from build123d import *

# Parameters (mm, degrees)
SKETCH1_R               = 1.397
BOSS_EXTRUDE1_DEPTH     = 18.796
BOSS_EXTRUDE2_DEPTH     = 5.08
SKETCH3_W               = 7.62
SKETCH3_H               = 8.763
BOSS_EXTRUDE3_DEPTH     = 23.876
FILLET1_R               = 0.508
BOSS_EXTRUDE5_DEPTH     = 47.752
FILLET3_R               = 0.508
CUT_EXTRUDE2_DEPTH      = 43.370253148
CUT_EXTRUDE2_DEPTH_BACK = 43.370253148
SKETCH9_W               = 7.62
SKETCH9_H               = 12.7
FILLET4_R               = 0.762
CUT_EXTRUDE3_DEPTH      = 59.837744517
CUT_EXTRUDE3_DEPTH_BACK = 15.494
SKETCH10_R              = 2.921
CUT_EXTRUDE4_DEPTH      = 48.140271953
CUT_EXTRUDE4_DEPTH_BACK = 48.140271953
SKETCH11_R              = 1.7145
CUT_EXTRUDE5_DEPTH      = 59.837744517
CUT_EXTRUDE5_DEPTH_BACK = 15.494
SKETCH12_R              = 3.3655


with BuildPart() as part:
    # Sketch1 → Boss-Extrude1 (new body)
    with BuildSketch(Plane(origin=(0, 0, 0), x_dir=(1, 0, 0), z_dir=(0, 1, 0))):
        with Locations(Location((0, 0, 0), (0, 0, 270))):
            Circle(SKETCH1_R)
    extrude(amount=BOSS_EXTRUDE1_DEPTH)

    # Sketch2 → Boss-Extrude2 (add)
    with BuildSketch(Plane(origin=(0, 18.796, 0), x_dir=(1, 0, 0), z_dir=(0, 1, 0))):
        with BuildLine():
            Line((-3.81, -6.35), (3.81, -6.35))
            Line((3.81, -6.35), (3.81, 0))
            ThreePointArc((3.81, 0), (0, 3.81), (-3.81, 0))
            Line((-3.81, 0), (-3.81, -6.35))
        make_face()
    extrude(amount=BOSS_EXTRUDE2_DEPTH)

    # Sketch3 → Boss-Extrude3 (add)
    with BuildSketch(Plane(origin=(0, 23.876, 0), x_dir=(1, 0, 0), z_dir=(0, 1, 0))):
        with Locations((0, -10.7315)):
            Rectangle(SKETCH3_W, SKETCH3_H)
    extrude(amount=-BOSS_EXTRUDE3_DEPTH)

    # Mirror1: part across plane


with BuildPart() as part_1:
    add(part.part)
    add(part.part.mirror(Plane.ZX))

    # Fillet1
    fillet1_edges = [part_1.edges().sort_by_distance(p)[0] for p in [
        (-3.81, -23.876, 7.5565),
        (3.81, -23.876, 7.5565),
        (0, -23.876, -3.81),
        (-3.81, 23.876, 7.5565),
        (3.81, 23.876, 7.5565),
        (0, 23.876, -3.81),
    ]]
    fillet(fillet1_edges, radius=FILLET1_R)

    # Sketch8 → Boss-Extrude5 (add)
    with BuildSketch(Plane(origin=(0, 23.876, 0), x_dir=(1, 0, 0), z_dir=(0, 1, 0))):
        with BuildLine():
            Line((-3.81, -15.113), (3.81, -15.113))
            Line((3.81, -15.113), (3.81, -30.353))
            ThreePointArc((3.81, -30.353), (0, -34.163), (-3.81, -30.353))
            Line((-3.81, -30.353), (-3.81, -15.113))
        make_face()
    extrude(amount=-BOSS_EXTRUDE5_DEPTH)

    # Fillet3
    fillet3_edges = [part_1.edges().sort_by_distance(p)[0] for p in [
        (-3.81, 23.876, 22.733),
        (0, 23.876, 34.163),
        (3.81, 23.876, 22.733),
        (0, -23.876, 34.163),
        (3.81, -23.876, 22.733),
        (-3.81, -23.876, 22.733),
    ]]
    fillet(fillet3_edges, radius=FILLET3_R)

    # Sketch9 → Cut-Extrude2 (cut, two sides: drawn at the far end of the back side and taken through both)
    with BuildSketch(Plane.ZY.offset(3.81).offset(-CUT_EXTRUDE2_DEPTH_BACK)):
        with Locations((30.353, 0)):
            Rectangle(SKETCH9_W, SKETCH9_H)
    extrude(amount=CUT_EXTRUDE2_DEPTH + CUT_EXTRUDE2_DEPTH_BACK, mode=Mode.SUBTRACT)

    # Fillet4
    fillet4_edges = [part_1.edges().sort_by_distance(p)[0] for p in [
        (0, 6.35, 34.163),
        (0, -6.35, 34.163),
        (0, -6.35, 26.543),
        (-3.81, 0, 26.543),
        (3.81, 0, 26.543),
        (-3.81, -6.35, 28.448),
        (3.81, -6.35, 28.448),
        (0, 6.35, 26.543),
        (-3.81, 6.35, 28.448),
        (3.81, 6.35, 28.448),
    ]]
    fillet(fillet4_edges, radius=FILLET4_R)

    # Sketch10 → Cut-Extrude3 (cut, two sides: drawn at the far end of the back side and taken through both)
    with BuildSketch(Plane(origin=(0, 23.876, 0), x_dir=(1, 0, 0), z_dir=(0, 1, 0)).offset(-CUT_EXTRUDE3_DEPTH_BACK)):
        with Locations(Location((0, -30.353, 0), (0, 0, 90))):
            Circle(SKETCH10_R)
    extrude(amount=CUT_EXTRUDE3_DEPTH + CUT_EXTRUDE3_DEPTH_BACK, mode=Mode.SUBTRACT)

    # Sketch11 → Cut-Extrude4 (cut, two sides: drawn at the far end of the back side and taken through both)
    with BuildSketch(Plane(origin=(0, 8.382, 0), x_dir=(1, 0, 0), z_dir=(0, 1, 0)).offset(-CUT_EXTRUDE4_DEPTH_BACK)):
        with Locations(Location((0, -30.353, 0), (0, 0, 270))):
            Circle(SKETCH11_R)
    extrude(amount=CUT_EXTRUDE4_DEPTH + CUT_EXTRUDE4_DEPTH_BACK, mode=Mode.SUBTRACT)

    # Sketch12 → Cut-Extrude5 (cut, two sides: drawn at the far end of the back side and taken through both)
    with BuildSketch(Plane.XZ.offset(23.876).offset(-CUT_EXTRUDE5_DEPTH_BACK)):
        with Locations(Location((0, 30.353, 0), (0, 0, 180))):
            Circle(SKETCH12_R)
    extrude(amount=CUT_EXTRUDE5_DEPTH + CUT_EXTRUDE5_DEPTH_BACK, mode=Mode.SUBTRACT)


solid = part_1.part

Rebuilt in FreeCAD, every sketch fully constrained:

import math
import FreeCAD as App
import Part
import Sketcher

V = App.Vector
Q = App.Units.Quantity


def edges_at(feature, points):
    """Names of the edges that pass closest to the given points."""
    edges = feature.Shape.Edges
    near = lambda p: min(range(len(edges)), key=lambda i: edges[i].distToShape(Part.Vertex(*p))[0])
    return sorted({f"Edge{near(p) + 1}" for p in points})

doc = App.newDocument("Part")
body = doc.addObject("PartDesign::Body", "Body")

sketch1 = doc.addObject("Sketcher::SketchObject", "Sketch")
body.addObject(sketch1)
sketch1.AttachmentSupport = (doc.XZ_Plane, [""])
sketch1.MapMode = "FlatFace"
sketch1.addGeometry(Part.Circle(V(0, 0, 0), V(0, 0, 1), 1.397), False)
sketch1.addConstraint(Sketcher.Constraint("Coincident", 0, 3, -1, 1))
sketch1.addConstraint(Sketcher.Constraint("Diameter", 0, Q("0.11 in")))
pad1 = doc.addObject("PartDesign::Pad", "Pad")
body.addObject(pad1)
pad1.Profile = sketch1
pad1.Length = Q("0.74 in")
pad1.Reversed = True

sketch2 = doc.addObject("Sketcher::SketchObject", "Sketch001")
body.addObject(sketch2)
sketch2.AttachmentSupport = (doc.XZ_Plane, [""])
sketch2.MapMode = "FlatFace"
sketch2.AttachmentOffset = App.Placement(V(0, 0, -0.74 * 25.4), App.Rotation())
sketch2.addGeometry(Part.LineSegment(V(-3.81, 6.35, 0), V(3.81, 6.35, 0)), False)
sketch2.addGeometry(Part.LineSegment(V(3.81, 6.35, 0), V(3.81, 0, 0)), False)
sketch2.addGeometry(Part.ArcOfCircle(Part.Circle(V(0, 0, 0), V(0, 0, 1), 3.81), math.radians(180), math.radians(360)), False)
sketch2.addGeometry(Part.LineSegment(V(-3.81, 0, 0), V(-3.81, 6.35, 0)), False)
sketch2.addConstraint(Sketcher.Constraint("Coincident", 0, 2, 1, 1))
sketch2.addConstraint(Sketcher.Constraint("Tangent", 1, 2, 2, 2))
sketch2.addConstraint(Sketcher.Constraint("Tangent", 2, 1, 3, 1))
sketch2.addConstraint(Sketcher.Constraint("Coincident", 3, 2, 0, 1))
sketch2.addConstraint(Sketcher.Constraint("Horizontal", 0))
sketch2.addConstraint(Sketcher.Constraint("Vertical", 1))
sketch2.addConstraint(Sketcher.Constraint("Vertical", 3))
sketch2.addConstraint(Sketcher.Constraint("Coincident", 2, 3, -1, 1))
sketch2.addConstraint(Sketcher.Constraint("Radius", 2, Q("0.15 in")))
sketch2.addConstraint(Sketcher.Constraint("DistanceY", 1, 2, 1, 1, Q("0.25 in")))
pad2 = doc.addObject("PartDesign::Pad", "Pad001")
body.addObject(pad2)
pad2.Profile = sketch2
pad2.Length = Q("0.2 in")
pad2.Reversed = True

sketch3 = doc.addObject("Sketcher::SketchObject", "Sketch002")
body.addObject(sketch3)
sketch3.AttachmentSupport = (doc.XZ_Plane, [""])
sketch3.MapMode = "FlatFace"
sketch3.AttachmentOffset = App.Placement(V(0, 0, -0.94 * 25.4), App.Rotation())
sketch3.addGeometry(Part.LineSegment(V(-3.81, 6.35, 0), V(-3.81, 15.113, 0)), False)
sketch3.addGeometry(Part.LineSegment(V(-3.81, 15.113, 0), V(3.81, 15.113, 0)), False)
sketch3.addGeometry(Part.LineSegment(V(3.81, 15.113, 0), V(3.81, 6.35, 0)), False)
sketch3.addGeometry(Part.LineSegment(V(3.81, 6.35, 0), V(-3.81, 6.35, 0)), False)
sketch3.addConstraint(Sketcher.Constraint("Coincident", 0, 2, 1, 1))
sketch3.addConstraint(Sketcher.Constraint("Coincident", 1, 2, 2, 1))
sketch3.addConstraint(Sketcher.Constraint("Coincident", 2, 2, 3, 1))
sketch3.addConstraint(Sketcher.Constraint("Coincident", 3, 2, 0, 1))
sketch3.addConstraint(Sketcher.Constraint("Vertical", 0))
sketch3.addConstraint(Sketcher.Constraint("Horizontal", 1))
sketch3.addConstraint(Sketcher.Constraint("Vertical", 2))
sketch3.addConstraint(Sketcher.Constraint("Horizontal", 3))
sketch3.addConstraint(Sketcher.Constraint("DistanceX", 1, 1, 1, 2, Q("0.3 in")))
sketch3.addConstraint(Sketcher.Constraint("DistanceY", 0, 1, 0, 2, Q("0.345 in")))
sketch3.addConstraint(Sketcher.Constraint("DistanceX", 0, 2, -1, 1, Q("0.15 in")))
sketch3.addConstraint(Sketcher.Constraint("DistanceY", -1, 1, 2, 2, Q("0.25 in")))
pad3 = doc.addObject("PartDesign::Pad", "Pad002")
body.addObject(pad3)
pad3.Profile = sketch3
pad3.Length = Q("0.94 in")
body2 = doc.addObject("PartDesign::Body", "Body001")
doc.recompute()

body2.BaseFeature = body
doc.recompute()

mirroring = doc.addObject("Part::Mirroring", "Mirroring")
mirroring.Source = body
mirroring.Base = V(0, 0, 0)
mirroring.Normal = V(0, 1, 0)
body3 = doc.addObject("PartDesign::Body", "Body002")
body3.BaseFeature = mirroring
boolean = doc.addObject("PartDesign::Boolean", "Boolean")
body2.addObject(boolean)
boolean.Type = "Fuse"
boolean.addObjects([body3])
doc.recompute()

fillet = doc.addObject("PartDesign::Fillet", "Fillet")
body2.addObject(fillet)
fillet.Base = (boolean, edges_at(boolean, [
    (-3.81, -23.876, 7.556),
    (3.81, -23.876, 7.556),
    (0, -23.876, -3.81),
    (-3.81, 23.876, 7.556),
    (3.81, 23.876, 7.556),
    (0, 23.876, -3.81),
]))
fillet.Radius = Q("0.02 in")

sketch4 = doc.addObject("Sketcher::SketchObject", "Sketch003")
body2.addObject(sketch4)
sketch4.AttachmentSupport = (doc.getObject("XZ_Plane001"), [""])
sketch4.MapMode = "FlatFace"
sketch4.AttachmentOffset = App.Placement(V(0, 0, -0.94 * 25.4), App.Rotation())
sketch4.addGeometry(Part.LineSegment(V(3.81, 15.113, 0), V(-3.81, 15.113, 0)), False)
sketch4.addGeometry(Part.LineSegment(V(-3.81, 15.113, 0), V(-3.81, 30.353, 0)), False)
sketch4.addGeometry(Part.ArcOfCircle(Part.Circle(V(0, 30.353, 0), V(0, 0, 1), 3.81), math.radians(0), math.radians(180)), False)
sketch4.addGeometry(Part.LineSegment(V(3.81, 30.353, 0), V(3.81, 15.113, 0)), False)
sketch4.addConstraint(Sketcher.Constraint("Coincident", 0, 2, 1, 1))
sketch4.addConstraint(Sketcher.Constraint("Tangent", 1, 2, 2, 2))
sketch4.addConstraint(Sketcher.Constraint("Tangent", 2, 1, 3, 1))
sketch4.addConstraint(Sketcher.Constraint("Coincident", 3, 2, 0, 1))
sketch4.addConstraint(Sketcher.Constraint("Horizontal", 0))
sketch4.addConstraint(Sketcher.Constraint("Vertical", 1))
sketch4.addConstraint(Sketcher.Constraint("Vertical", 3))
sketch4.addConstraint(Sketcher.Constraint("PointOnObject", 2, 3, -2))
sketch4.addConstraint(Sketcher.Constraint("Radius", 2, Q("0.15 in")))
sketch4.addConstraint(Sketcher.Constraint("DistanceY", 1, 1, 1, 2, Q("0.6 in")))
sketch4.addConstraint(Sketcher.Constraint("DistanceY", -1, 1, 2, 3, Q("1.195 in")))
pad4 = doc.addObject("PartDesign::Pad", "Pad003")
body2.addObject(pad4)
pad4.Profile = sketch4
pad4.Length = Q("1.88 in")
doc.recompute()

fillet2 = doc.addObject("PartDesign::Fillet", "Fillet001")
body2.addObject(fillet2)
fillet2.Base = (pad4, edges_at(pad4, [
    (-3.81, 23.876, 22.733),
    (0, 23.876, 34.163),
    (3.81, 23.876, 22.733),
    (0, -23.876, 34.163),
    (3.81, -23.876, 22.733),
    (-3.81, -23.876, 22.733),
]))
fillet2.Radius = Q("0.02 in")

sketch5 = doc.addObject("Sketcher::SketchObject", "Sketch004")
body2.addObject(sketch5)
sketch5.AttachmentSupport = (doc.getObject("YZ_Plane001"), [""])
sketch5.MapMode = "FlatFace"
sketch5.AttachmentOffset = App.Placement(V(0, 0, -0.15 * 25.4), App.Rotation())
sketch5.addGeometry(Part.LineSegment(V(6.35, 26.543, 0), V(-6.35, 26.543, 0)), False)
sketch5.addGeometry(Part.LineSegment(V(-6.35, 26.543, 0), V(-6.35, 34.163, 0)), False)
sketch5.addGeometry(Part.LineSegment(V(-6.35, 34.163, 0), V(6.35, 34.163, 0)), False)
sketch5.addGeometry(Part.LineSegment(V(6.35, 34.163, 0), V(6.35, 26.543, 0)), False)
sketch5.addConstraint(Sketcher.Constraint("Coincident", 0, 2, 1, 1))
sketch5.addConstraint(Sketcher.Constraint("Coincident", 1, 2, 2, 1))
sketch5.addConstraint(Sketcher.Constraint("Coincident", 2, 2, 3, 1))
sketch5.addConstraint(Sketcher.Constraint("Coincident", 3, 2, 0, 1))
sketch5.addConstraint(Sketcher.Constraint("Horizontal", 0))
sketch5.addConstraint(Sketcher.Constraint("Vertical", 1))
sketch5.addConstraint(Sketcher.Constraint("Horizontal", 2))
sketch5.addConstraint(Sketcher.Constraint("Vertical", 3))
sketch5.addConstraint(Sketcher.Constraint("DistanceX", 0, 2, 0, 1, Q("0.5 in")))
sketch5.addConstraint(Sketcher.Constraint("DistanceY", 1, 1, 1, 2, Q("0.3 in")))
sketch5.addConstraint(Sketcher.Constraint("DistanceX", 0, 2, -1, 1, Q("0.25 in")))
sketch5.addConstraint(Sketcher.Constraint("DistanceY", -1, 1, 0, 2, Q("1.045 in")))
pocket1 = doc.addObject("PartDesign::Pocket", "Pocket")
body2.addObject(pocket1)
pocket1.Profile = sketch5
pocket1.Type = "ThroughAll"
pocket1.Midplane = True
doc.recompute()

fillet3 = doc.addObject("PartDesign::Fillet", "Fillet002")
body2.addObject(fillet3)
fillet3.Base = (pocket1, edges_at(pocket1, [
    (0, 6.35, 34.163),
    (0, -6.35, 34.163),
    (0, -6.35, 26.543),
    (-3.81, 0, 26.543),
    (3.81, 0, 26.543),
    (-3.81, -6.35, 28.448),
    (3.81, -6.35, 28.448),
    (0, 6.35, 26.543),
    (-3.81, 6.35, 28.448),
    (3.81, 6.35, 28.448),
]))
fillet3.Radius = Q("0.03 in")

sketch6 = doc.addObject("Sketcher::SketchObject", "Sketch005")
body2.addObject(sketch6)
sketch6.AttachmentSupport = (doc.getObject("XZ_Plane001"), [""])
sketch6.MapMode = "FlatFace"
sketch6.AttachmentOffset = App.Placement(V(0, 0, -0.94 * 25.4), App.Rotation())
sketch6.addGeometry(Part.Circle(V(0, 30.353, 0), V(0, 0, 1), 2.921), False)
sketch6.addConstraint(Sketcher.Constraint("PointOnObject", 0, 3, -2))
sketch6.addConstraint(Sketcher.Constraint("Diameter", 0, Q("0.23 in")))
sketch6.addConstraint(Sketcher.Constraint("DistanceY", -1, 1, 0, 3, Q("1.195 in")))
pocket2 = doc.addObject("PartDesign::Pocket", "Pocket001")
body2.addObject(pocket2)
pocket2.Profile = sketch6
pocket2.Type = "TwoLengths"
pocket2.Length = 59.837745
pocket2.Length2 = Q("0.61 in")

sketch7 = doc.addObject("Sketcher::SketchObject", "Sketch006")
body2.addObject(sketch7)
sketch7.AttachmentSupport = (doc.getObject("XZ_Plane001"), [""])
sketch7.MapMode = "FlatFace"
sketch7.AttachmentOffset = App.Placement(V(0, 0, -0.33 * 25.4), App.Rotation())
sketch7.addGeometry(Part.Circle(V(0, 30.353, 0), V(0, 0, 1), 1.7145), False)
sketch7.addConstraint(Sketcher.Constraint("PointOnObject", 0, 3, -2))
sketch7.addConstraint(Sketcher.Constraint("Diameter", 0, Q("0.135 in")))
sketch7.addConstraint(Sketcher.Constraint("DistanceY", -1, 1, 0, 3, Q("1.195 in")))
pocket3 = doc.addObject("PartDesign::Pocket", "Pocket002")
body2.addObject(pocket3)
pocket3.Profile = sketch7
pocket3.Type = "ThroughAll"
pocket3.Midplane = True

sketch8 = doc.addObject("Sketcher::SketchObject", "Sketch007")
body2.addObject(sketch8)
sketch8.AttachmentSupport = (doc.getObject("XZ_Plane001"), [""])
sketch8.MapMode = "FlatFace"
sketch8.AttachmentOffset = App.Placement(V(0, 0, 0.94 * 25.4), App.Rotation())
sketch8.addGeometry(Part.Circle(V(0, 30.353, 0), V(0, 0, 1), 3.3655), False)
sketch8.addConstraint(Sketcher.Constraint("PointOnObject", 0, 3, -2))
sketch8.addConstraint(Sketcher.Constraint("Diameter", 0, Q("0.265 in")))
sketch8.addConstraint(Sketcher.Constraint("DistanceY", -1, 1, 0, 3, Q("1.195 in")))
pocket4 = doc.addObject("PartDesign::Pocket", "Pocket003")
body2.addObject(pocket4)
pocket4.Profile = sketch8
pocket4.Type = "TwoLengths"
pocket4.Length = 59.837745
pocket4.Length2 = Q("0.61 in")
pocket4.Reversed = True
mirroring.Visibility = False

doc.recompute()
